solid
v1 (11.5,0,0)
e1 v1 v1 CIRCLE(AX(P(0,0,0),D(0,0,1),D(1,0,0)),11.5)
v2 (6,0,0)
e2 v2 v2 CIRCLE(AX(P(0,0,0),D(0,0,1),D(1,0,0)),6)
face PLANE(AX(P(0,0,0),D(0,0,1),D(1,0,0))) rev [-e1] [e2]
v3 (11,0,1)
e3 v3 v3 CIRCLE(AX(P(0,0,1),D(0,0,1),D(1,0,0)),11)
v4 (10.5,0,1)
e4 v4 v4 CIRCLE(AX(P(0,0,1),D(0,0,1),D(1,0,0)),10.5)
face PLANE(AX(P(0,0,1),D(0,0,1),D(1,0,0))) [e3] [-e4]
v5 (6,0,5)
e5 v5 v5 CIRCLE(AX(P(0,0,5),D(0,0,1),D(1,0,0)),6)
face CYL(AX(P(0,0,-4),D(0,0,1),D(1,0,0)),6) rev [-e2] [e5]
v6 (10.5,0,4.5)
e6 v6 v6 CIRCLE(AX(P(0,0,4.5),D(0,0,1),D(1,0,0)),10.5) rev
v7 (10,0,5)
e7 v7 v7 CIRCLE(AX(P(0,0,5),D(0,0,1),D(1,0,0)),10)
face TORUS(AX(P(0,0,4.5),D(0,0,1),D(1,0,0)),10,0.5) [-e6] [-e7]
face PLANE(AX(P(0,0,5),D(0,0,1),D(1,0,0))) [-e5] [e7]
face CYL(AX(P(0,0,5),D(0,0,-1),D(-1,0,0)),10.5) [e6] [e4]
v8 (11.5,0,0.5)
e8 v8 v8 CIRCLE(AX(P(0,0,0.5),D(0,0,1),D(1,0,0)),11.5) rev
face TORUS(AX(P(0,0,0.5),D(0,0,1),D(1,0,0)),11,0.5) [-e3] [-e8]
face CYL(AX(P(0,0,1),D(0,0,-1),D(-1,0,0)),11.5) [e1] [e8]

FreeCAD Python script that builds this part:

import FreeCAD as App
import Part
import Sketcher
from FreeCAD import Vector
Q = App.Units.Quantity


def edges_at(feature, points):
    """Names of the edges that pass closest to the given points."""
    edges = feature.Shape.Edges
    near = lambda p: min(range(len(edges)), key=lambda i: edges[i].distToShape(Part.Vertex(*p))[0])
    return sorted({f"Edge{near(p) + 1}" for p in points})

doc = App.newDocument("Part")
params = doc.addObject("Spreadsheet::Sheet", "Params")
for row, (alias, value) in enumerate([
    ("sketch1_diameter", "23 mm"),
    ("pad1_length", "1 mm"),
    ("sketch2_diameter", "21 mm"),
    ("pad2_length", "4 mm"),
    ("sketch3_diameter", "12 mm"),
    ("pocket1_length", "9 mm"),
    ("fillet_radius", "0.5 mm"),
], start=1):
    params.set(f"A{row}", alias)
    params.set(f"B{row}", "=" + value)
    params.setAlias(f"B{row}", alias)

body = doc.addObject("PartDesign::Body", "Body")

sketch1 = body.newObject("Sketcher::SketchObject", "Sketch")
sketch1.AttachmentSupport = (doc.getObject("XY_Plane"), [""])
sketch1.MapMode = "FlatFace"
sketch1.addGeometry(Part.Circle(Vector(0, 0, 0), Vector(0, 0, 1), 12), False)
sketch1.addConstraint([
    Sketcher.Constraint("Coincident", 0, 3, -1, 1),
    Sketcher.Constraint("Diameter", 0, Q("23 mm")),
])
sketch1.setExpression("Constraints[1]", "Params.sketch1_diameter")
pad1 = body.newObject("PartDesign::Pad", "Pad")
pad1.Profile = sketch1
pad1.setExpression("Length", "Params.pad1_length")

sketch2 = body.newObject("Sketcher::SketchObject", "Sketch001")
sketch2.AttachmentSupport = (doc.getObject("XY_Plane"), [""])
sketch2.MapMode = "FlatFace"
sketch2.AttachmentOffset = App.Placement(Vector(0, 0, 1), App.Rotation())
sketch2.addGeometry(Part.Circle(Vector(0, 0, 0), Vector(0, 0, 1), 10), False)
sketch2.addConstraint([
    Sketcher.Constraint("Coincident", 0, 3, -1, 1),
    Sketcher.Constraint("Diameter", 0, Q("21 mm")),
])
sketch2.setExpression("Constraints[1]", "Params.sketch2_diameter")
pad2 = body.newObject("PartDesign::Pad", "Pad001")
pad2.Profile = sketch2
pad2.setExpression("Length", "Params.pad2_length")

sketch3 = body.newObject("Sketcher::SketchObject", "Sketch002")
sketch3.AttachmentSupport = (doc.getObject("XY_Plane"), [""])
sketch3.MapMode = "FlatFace"
sketch3.AttachmentOffset = App.Placement(Vector(0, 0, 5), App.Rotation())
sketch3.addGeometry(Part.Circle(Vector(0, 0, 0), Vector(0, 0, 1), 6), False)
sketch3.addConstraint([
    Sketcher.Constraint("Coincident", 0, 3, -1, 1),
    Sketcher.Constraint("Diameter", 0, Q("12 mm")),
])
sketch3.setExpression("Constraints[1]", "Params.sketch3_diameter")
pocket1 = body.newObject("PartDesign::Pocket", "Pocket")
pocket1.Profile = sketch3
pocket1.setExpression("Length", "Params.pocket1_length")
doc.recompute()

fillet = body.newObject("PartDesign::Fillet", "Fillet")
fillet.Base = (pocket1, edges_at(pocket1, [(-11.5, 0, 1), (-10.5, 0, 5)]))
fillet.setExpression("Radius", "Params.fillet_radius")

doc.recompute()
